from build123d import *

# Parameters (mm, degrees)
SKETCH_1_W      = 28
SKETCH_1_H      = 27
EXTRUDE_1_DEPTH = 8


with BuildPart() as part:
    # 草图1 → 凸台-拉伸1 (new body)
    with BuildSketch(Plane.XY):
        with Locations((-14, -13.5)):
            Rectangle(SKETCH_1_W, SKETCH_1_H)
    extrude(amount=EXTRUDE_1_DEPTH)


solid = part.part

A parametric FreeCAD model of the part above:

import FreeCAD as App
import Part
import Sketcher

V = App.Vector
Q = App.Units.Quantity


def add_polygon(sketch, points):
    """Adds a closed chain of lines whose ends are joined by coincident constraints."""
    first, n = sketch.GeometryCount, len(points)
    for a, b in zip(points, points[1:] + points[:1]):
        sketch.addGeometry(Part.LineSegment(App.Vector(*a, 0), App.Vector(*b, 0)), False)
    for i in range(n):
        sketch.addConstraint(Sketcher.Constraint("Coincident", first + i, 2, first + (i + 1) % n, 1))

doc = App.newDocument("Part")
body = doc.addObject("PartDesign::Body", "Body")

# Sketch on XY plane
sketch1 = doc.addObject("Sketcher::SketchObject", "Sketch")
body.addObject(sketch1)
sketch1.AttachmentSupport = (doc.XY_Plane, [""])
sketch1.MapMode = "FlatFace"
add_polygon(sketch1, [(-28, 0), (-28, -27), (0, -27), (0, 0)])  # lines 0-3
sketch1.addConstraint(Sketcher.Constraint("Vertical", 0))
sketch1.addConstraint(Sketcher.Constraint("Horizontal", 1))
sketch1.addConstraint(Sketcher.Constraint("Vertical", 2))
sketch1.addConstraint(Sketcher.Constraint("Horizontal", 3))
sketch1.addConstraint(Sketcher.Constraint("Coincident", 2, 2, -1, 1))
sketch1.addConstraint(Sketcher.Constraint("DistanceX", 1, 1, 1, 2, Q("28 mm")))
sketch1.addConstraint(Sketcher.Constraint("DistanceY", 0, 2, 0, 1, Q("27 mm")))
pad1 = doc.addObject("PartDesign::Pad", "Pad")
body.addObject(pad1)
pad1.Profile = sketch1
pad1.Length = 8

doc.recompute()
